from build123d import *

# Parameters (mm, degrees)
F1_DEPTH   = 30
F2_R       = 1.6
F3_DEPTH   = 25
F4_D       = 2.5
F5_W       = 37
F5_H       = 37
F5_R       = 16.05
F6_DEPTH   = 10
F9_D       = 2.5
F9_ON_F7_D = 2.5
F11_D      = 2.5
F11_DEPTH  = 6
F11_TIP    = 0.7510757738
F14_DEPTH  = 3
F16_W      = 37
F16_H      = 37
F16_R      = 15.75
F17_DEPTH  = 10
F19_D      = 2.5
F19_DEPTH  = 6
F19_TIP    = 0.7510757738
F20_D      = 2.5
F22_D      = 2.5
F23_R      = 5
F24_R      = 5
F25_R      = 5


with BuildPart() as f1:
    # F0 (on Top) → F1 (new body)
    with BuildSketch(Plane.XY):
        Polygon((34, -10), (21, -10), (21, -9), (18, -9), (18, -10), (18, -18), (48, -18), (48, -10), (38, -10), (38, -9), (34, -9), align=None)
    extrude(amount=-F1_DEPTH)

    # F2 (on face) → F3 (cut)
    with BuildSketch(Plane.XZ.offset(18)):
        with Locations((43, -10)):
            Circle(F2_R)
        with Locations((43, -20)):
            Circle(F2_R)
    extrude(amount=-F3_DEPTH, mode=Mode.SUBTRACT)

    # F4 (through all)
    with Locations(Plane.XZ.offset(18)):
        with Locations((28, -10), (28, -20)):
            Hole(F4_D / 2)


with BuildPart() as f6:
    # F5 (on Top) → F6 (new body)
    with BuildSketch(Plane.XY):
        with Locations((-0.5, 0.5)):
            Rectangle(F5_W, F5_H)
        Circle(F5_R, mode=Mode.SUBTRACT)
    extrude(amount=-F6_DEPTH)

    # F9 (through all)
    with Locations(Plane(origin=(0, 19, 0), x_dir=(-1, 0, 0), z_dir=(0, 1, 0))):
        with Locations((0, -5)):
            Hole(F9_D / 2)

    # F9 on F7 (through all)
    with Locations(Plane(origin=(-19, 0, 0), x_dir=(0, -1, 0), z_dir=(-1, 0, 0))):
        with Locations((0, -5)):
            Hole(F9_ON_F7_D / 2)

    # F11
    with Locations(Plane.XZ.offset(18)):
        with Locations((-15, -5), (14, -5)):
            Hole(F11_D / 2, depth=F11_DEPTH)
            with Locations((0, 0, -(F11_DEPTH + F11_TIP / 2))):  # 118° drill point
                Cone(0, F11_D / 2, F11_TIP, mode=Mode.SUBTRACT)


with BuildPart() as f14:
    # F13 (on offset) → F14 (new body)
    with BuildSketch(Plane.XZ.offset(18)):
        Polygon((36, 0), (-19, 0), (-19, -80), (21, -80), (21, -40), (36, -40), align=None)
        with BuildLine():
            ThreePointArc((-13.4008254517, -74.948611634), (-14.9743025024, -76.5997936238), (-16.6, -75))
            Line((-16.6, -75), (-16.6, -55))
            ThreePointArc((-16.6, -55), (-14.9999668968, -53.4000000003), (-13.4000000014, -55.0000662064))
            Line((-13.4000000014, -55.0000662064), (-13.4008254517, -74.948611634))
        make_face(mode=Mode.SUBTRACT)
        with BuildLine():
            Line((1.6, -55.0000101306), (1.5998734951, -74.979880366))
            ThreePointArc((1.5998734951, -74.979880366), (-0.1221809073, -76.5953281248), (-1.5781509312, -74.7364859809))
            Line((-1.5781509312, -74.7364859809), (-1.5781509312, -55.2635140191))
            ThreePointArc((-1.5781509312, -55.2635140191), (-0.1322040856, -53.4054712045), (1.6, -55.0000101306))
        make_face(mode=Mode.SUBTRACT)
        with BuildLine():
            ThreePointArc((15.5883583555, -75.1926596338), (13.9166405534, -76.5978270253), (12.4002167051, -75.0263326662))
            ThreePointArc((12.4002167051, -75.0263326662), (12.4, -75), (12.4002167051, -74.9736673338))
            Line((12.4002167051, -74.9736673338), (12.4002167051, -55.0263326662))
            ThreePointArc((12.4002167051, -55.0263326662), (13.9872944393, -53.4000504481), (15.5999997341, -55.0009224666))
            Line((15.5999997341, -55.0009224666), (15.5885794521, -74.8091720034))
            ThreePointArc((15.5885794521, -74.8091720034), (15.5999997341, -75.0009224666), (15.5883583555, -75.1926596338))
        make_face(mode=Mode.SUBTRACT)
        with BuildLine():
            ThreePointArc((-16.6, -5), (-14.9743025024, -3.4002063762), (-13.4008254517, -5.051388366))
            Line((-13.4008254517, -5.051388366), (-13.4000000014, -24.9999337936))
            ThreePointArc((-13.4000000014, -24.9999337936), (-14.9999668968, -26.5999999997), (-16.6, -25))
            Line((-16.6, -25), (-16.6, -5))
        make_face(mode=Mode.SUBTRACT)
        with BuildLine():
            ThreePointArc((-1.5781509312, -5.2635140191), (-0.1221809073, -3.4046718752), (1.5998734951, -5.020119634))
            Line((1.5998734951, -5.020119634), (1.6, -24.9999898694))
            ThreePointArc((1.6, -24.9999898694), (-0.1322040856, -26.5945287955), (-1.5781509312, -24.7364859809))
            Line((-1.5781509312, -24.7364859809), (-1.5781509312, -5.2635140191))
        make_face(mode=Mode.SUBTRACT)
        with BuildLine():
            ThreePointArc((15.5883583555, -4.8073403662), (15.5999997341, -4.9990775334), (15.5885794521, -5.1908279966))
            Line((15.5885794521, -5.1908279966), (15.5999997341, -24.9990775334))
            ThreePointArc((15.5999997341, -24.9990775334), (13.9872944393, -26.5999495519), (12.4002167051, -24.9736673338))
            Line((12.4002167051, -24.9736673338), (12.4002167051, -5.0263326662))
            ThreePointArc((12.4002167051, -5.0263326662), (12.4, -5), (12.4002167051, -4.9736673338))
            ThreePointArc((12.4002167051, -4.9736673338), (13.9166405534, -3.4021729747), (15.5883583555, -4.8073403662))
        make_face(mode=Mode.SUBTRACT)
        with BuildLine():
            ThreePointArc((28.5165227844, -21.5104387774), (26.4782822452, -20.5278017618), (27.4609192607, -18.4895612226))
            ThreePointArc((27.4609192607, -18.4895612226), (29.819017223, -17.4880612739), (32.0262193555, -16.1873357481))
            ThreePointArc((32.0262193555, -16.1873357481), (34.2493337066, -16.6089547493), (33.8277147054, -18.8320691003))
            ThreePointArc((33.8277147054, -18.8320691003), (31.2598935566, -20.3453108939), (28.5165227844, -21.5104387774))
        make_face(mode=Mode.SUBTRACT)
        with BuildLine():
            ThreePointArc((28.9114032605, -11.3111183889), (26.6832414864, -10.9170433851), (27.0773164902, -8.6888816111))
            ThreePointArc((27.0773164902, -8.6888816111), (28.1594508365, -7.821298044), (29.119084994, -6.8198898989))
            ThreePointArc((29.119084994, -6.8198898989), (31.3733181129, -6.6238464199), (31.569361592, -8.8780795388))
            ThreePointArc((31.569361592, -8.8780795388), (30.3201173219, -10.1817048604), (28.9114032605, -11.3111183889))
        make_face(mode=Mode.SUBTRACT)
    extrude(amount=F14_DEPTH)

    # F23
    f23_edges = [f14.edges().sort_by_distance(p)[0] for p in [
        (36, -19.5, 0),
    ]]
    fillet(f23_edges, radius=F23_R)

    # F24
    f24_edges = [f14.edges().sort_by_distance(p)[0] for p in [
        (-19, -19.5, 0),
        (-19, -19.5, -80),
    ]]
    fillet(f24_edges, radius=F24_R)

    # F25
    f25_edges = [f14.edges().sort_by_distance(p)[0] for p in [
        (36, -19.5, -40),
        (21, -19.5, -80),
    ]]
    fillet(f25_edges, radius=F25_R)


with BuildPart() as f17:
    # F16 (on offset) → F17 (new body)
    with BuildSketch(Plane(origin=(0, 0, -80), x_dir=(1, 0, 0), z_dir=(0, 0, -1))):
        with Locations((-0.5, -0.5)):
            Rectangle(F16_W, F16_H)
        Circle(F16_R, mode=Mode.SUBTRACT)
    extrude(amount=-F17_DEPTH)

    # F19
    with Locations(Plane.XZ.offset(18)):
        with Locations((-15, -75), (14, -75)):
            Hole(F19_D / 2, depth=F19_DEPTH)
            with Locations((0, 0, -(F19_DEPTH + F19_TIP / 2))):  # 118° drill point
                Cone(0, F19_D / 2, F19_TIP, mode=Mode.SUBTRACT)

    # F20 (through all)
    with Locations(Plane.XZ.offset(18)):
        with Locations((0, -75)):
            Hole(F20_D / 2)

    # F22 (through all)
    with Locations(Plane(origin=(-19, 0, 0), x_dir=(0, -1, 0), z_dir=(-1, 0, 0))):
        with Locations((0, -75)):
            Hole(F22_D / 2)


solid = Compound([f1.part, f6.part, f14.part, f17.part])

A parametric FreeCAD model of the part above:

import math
import FreeCAD as App
import Part
import Sketcher

V = App.Vector


def edges_at(feature, points):
    """Names of the edges that pass closest to the given points."""
    edges = feature.Shape.Edges
    near = lambda p: min(range(len(edges)), key=lambda i: edges[i].distToShape(Part.Vertex(*p))[0])
    return sorted({f"Edge{near(p) + 1}" for p in points})


def add_polygon(sketch, points):
    """Adds a closed chain of lines whose ends are joined by coincident constraints."""
    first, n = sketch.GeometryCount, len(points)
    for a, b in zip(points, points[1:] + points[:1]):
        sketch.addGeometry(Part.LineSegment(App.Vector(*a, 0), App.Vector(*b, 0)), False)
    for i in range(n):
        sketch.addConstraint(Sketcher.Constraint("Coincident", first + i, 2, first + (i + 1) % n, 1))

doc = App.newDocument("Part")
body = doc.addObject("PartDesign::Body", "Body")

sketch1 = doc.addObject("Sketcher::SketchObject", "Sketch")
body.addObject(sketch1)
sketch1.AttachmentSupport = (doc.XY_Plane, [""])
sketch1.MapMode = "FlatFace"
add_polygon(sketch1, [(34, -10), (21, -10), (21, -9), (18, -9), (18, -18), (48, -18), (48, -10), (38, -10), (38, -9), (34, -9)])
sketch1.addConstraint([
    Sketcher.Constraint("Horizontal", 0),
    Sketcher.Constraint("Vertical", 1),
    Sketcher.Constraint("Horizontal", 2),
    Sketcher.Constraint("Vertical", 3),
    Sketcher.Constraint("Horizontal", 4),
    Sketcher.Constraint("Vertical", 5),
    Sketcher.Constraint("Horizontal", 6),
    Sketcher.Constraint("Vertical", 7),
    Sketcher.Constraint("Horizontal", 8),
    Sketcher.Constraint("Vertical", 9),
    Sketcher.Constraint("Horizontal", 0, 2, 5, 2),
    Sketcher.Constraint("Horizontal", 2, 2, 7, 2),
    Sketcher.Constraint("DistanceX", 0, 2, 0, 1, 13.0),
    Sketcher.Constraint("DistanceX", 2, 2, 2, 1, 3.0),
    Sketcher.Constraint("DistanceX", 4, 1, 4, 2, 30.0),
    Sketcher.Constraint("DistanceX", 6, 2, 6, 1, 10.0),
    Sketcher.Constraint("DistanceY", 1, 1, 1, 2, 1.0),
    Sketcher.Constraint("DistanceY", 3, 2, 3, 1, 9.0),
    Sketcher.Constraint("DistanceX", -1, 1, 0, 2, 21.0),
    Sketcher.Constraint("DistanceY", 0, 2, -1, 1, 10.0),
])
pad1 = doc.addObject("PartDesign::Pad", "Pad")
body.addObject(pad1)
pad1.Profile = sketch1
pad1.Length = 30
pad1.Reversed = True

sketch2 = doc.addObject("Sketcher::SketchObject", "Sketch001")
body.addObject(sketch2)
sketch2.AttachmentSupport = (doc.XZ_Plane, [""])
sketch2.MapMode = "FlatFace"
sketch2.AttachmentOffset = App.Placement(V(0, 0, 18), App.Rotation())
sketch2.addGeometry([
    Part.Circle(V(43, -10, 0), V(0, 0, 1), 1.6),
    Part.Circle(V(43, -20, 0), V(0, 0, 1), 1.6),
], False)
sketch2.addConstraint([
    Sketcher.Constraint("Equal", 0, 1),
    Sketcher.Constraint("Vertical", 0, 3, 1, 3),
    Sketcher.Constraint("Diameter", 0, 3.2),
    Sketcher.Constraint("DistanceX", -1, 1, 0, 3, 43.0),
    Sketcher.Constraint("DistanceY", 0, 3, -1, 1, 10.0),
    Sketcher.Constraint("DistanceY", 1, 3, -1, 1, 20.0),
])
pocket1 = doc.addObject("PartDesign::Pocket", "Pocket")
body.addObject(pocket1)
pocket1.Profile = sketch2
pocket1.Length = 25

sketch3 = doc.addObject("Sketcher::SketchObject", "Sketch002")
body.addObject(sketch3)
sketch3.AttachmentSupport = (doc.XZ_Plane, [""])
sketch3.MapMode = "FlatFace"
sketch3.AttachmentOffset = App.Placement(V(0, 0, 18), App.Rotation())
sketch3.addGeometry([
    Part.Circle(V(28, -10, 0), V(0, 0, 1), 1.2),
    Part.Circle(V(28, -20, 0), V(0, 0, 1), 1.2),
], False)
sketch3.addConstraint([
    Sketcher.Constraint("Equal", 0, 1),
    Sketcher.Constraint("Vertical", 0, 3, 1, 3),
    Sketcher.Constraint("Diameter", 0, 2.5),
    Sketcher.Constraint("DistanceX", -1, 1, 0, 3, 28.0),
    Sketcher.Constraint("DistanceY", 0, 3, -1, 1, 10.0),
    Sketcher.Constraint("DistanceY", 1, 3, -1, 1, 20.0),
])
doc.recompute()
hole = doc.addObject("PartDesign::Hole", "Hole")
body.addObject(hole)
hole.Profile = sketch3
hole.ThreadType = "None"
hole.Diameter = 2.5
hole.DepthType = "ThroughAll"
body2 = doc.addObject("PartDesign::Body", "Body001")

sketch4 = doc.addObject("Sketcher::SketchObject", "Sketch003")
body2.addObject(sketch4)
sketch4.AttachmentSupport = (doc.getObject("XY_Plane001"), [""])
sketch4.MapMode = "FlatFace"
add_polygon(sketch4, [(-19, 19), (-19, -18), (18, -18), (18, 19)])
sketch4.addGeometry(Part.Circle(V(0, 0, 0), V(0, 0, 1), 16), False)
sketch4.addConstraint([
    Sketcher.Constraint("Vertical", 0),
    Sketcher.Constraint("Horizontal", 1),
    Sketcher.Constraint("Vertical", 2),
    Sketcher.Constraint("Horizontal", 3),
    Sketcher.Constraint("Coincident", 4, 3, -1, 1),
    Sketcher.Constraint("Equal", 3, 0),
    Sketcher.Constraint("Diameter", 4, 32.1),
    Sketcher.Constraint("DistanceX", 1, 1, 1, 2, 37.0),
    Sketcher.Constraint("DistanceX", 0, 2, -1, 1, 19.0),
    Sketcher.Constraint("DistanceY", 0, 2, -1, 1, 18.0),
])
pad2 = doc.addObject("PartDesign::Pad", "Pad001")
body2.addObject(pad2)
pad2.Profile = sketch4
pad2.Length = 10
pad2.Reversed = True

sketch5 = doc.addObject("Sketcher::SketchObject", "Sketch004")
body2.addObject(sketch5)
sketch5.AttachmentSupport = (doc.getObject("XZ_Plane001"), [""])
sketch5.MapMode = "FlatFace"
sketch5.AttachmentOffset = App.Placement(V(0, 0, -19), App.Rotation())
sketch5.addGeometry(Part.Circle(V(0, -5, 0), V(0, 0, 1), 1.2), False)
sketch5.addConstraint([
    Sketcher.Constraint("PointOnObject", 0, 3, -2),
    Sketcher.Constraint("Diameter", 0, 2.5),
    Sketcher.Constraint("DistanceY", 0, 3, -1, 1, 5.0),
])
doc.recompute()
hole2 = doc.addObject("PartDesign::Hole", "Hole001")
body2.addObject(hole2)
hole2.Profile = sketch5
hole2.ThreadType = "None"
hole2.Diameter = 2.5
hole2.DepthType = "ThroughAll"
hole2.Reversed = True

sketch6 = doc.addObject("Sketcher::SketchObject", "Sketch005")
body2.addObject(sketch6)
sketch6.AttachmentSupport = (doc.getObject("YZ_Plane001"), [""])
sketch6.MapMode = "FlatFace"
sketch6.AttachmentOffset = App.Placement(V(0, 0, -19), App.Rotation())
sketch6.addGeometry(Part.Circle(V(0, -5, 0), V(0, 0, 1), 1.2), False)
sketch6.addConstraint([
    Sketcher.Constraint("PointOnObject", 0, 3, -2),
    Sketcher.Constraint("Diameter", 0, 2.5),
    Sketcher.Constraint("DistanceY", 0, 3, -1, 1, 5.0),
])
doc.recompute()
hole3 = doc.addObject("PartDesign::Hole", "Hole002")
body2.addObject(hole3)
hole3.Profile = sketch6
hole3.ThreadType = "None"
hole3.Diameter = 2.5
hole3.DepthType = "ThroughAll"
hole3.Reversed = True

sketch7 = doc.addObject("Sketcher::SketchObject", "Sketch006")
body2.addObject(sketch7)
sketch7.AttachmentSupport = (doc.getObject("XZ_Plane001"), [""])
sketch7.MapMode = "FlatFace"
sketch7.AttachmentOffset = App.Placement(V(0, 0, 18), App.Rotation())
sketch7.addGeometry([
    Part.Circle(V(-15, -5, 0), V(0, 0, 1), 1.2),
    Part.Circle(V(14, -5, 0), V(0, 0, 1), 1.2),
], False)
sketch7.addConstraint([
    Sketcher.Constraint("Equal", 0, 1),
    Sketcher.Constraint("Horizontal", 0, 3, 1, 3),
    Sketcher.Constraint("Diameter", 0, 2.5),
    Sketcher.Constraint("DistanceX", 0, 3, -1, 1, 15.0),
    Sketcher.Constraint("DistanceY", 0, 3, -1, 1, 5.0),
    Sketcher.Constraint("DistanceX", -1, 1, 1, 3, 14.0),
])
doc.recompute()
hole4 = doc.addObject("PartDesign::Hole", "Hole003")
body2.addObject(hole4)
hole4.Profile = sketch7
hole4.ThreadType = "None"
hole4.Diameter = 2.5
hole4.DepthType = "Dimension"
hole4.Depth = 6
hole4.DrillPoint = "Angled"
hole4.DrillPointAngle = 118
body3 = doc.addObject("PartDesign::Body", "Body002")

sketch8 = doc.addObject("Sketcher::SketchObject", "Sketch007")
body3.addObject(sketch8)
sketch8.AttachmentSupport = (doc.getObject("XZ_Plane002"), [""])
sketch8.MapMode = "FlatFace"
sketch8.AttachmentOffset = App.Placement(V(0, 0, 18), App.Rotation())
add_polygon(sketch8, [(36, 0), (-19, 0), (-19, -80), (21, -80), (21, -40), (36, -40)])
sketch8.addGeometry(Part.LineSegment(V(-13.4, -55, 0), V(-13.4, -74.95, 0)), False)
sketch8.addGeometry(Part.ArcOfCircle(Part.Circle(V(-15, -75, 0), V(0, 0, 1), 1.6), math.radians(180), math.radians(362)), False)
sketch8.addGeometry(Part.LineSegment(V(-16.6, -75, 0), V(-16.6, -55, 0)), False)
sketch8.addGeometry(Part.ArcOfCircle(Part.Circle(V(-15, -55, 0), V(0, 0, 1), 1.6), math.radians(0), math.radians(180)), False)
sketch8.addGeometry(Part.ArcOfCircle(Part.Circle(V(0, -55, 0), V(0, 0, 1), 1.6), math.radians(0), math.radians(189)), False)
sketch8.addGeometry(Part.LineSegment(V(1.6, -55, 0), V(1.6, -74.98, 0)), False)
sketch8.addGeometry(Part.ArcOfCircle(Part.Circle(V(0, -75, 0), V(0, 0, 1), 1.6), math.radians(171), math.radians(361)), False)
sketch8.addGeometry(Part.LineSegment(V(-1.58, -74.74, 0), V(-1.58, -55.26, 0)), False)
sketch8.addGeometry(Part.ArcOfCircle(Part.Circle(V(14, -75, 0), V(0, 0, 1), 1.6), math.radians(-6.92), math.radians(6.85)), False)
sketch8.addGeometry(Part.ArcOfCircle(Part.Circle(V(14, -75, 0), V(0, 0, 1), 1.6), math.radians(-179), math.radians(-7)), False)
sketch8.addGeometry(Part.ArcOfCircle(Part.Circle(V(14, -75, 0), V(0, 0, 1), 1.6), math.radians(179.06), math.radians(180.94)), False)
sketch8.addGeometry(Part.LineSegment(V(12.4, -74.97, 0), V(12.4, -55.03, 0)), False)
sketch8.addGeometry(Part.ArcOfCircle(Part.Circle(V(14, -55, 0), V(0, 0, 1), 1.6), math.radians(0), math.radians(181)), False)
sketch8.addGeometry(Part.LineSegment(V(15.6, -55, 0), V(15.59, -74.81, 0)), False)
sketch8.addGeometry(Part.LineSegment(V(-16.6, -25, 0), V(-16.6, -5, 0)), False)
sketch8.addGeometry(Part.ArcOfCircle(Part.Circle(V(-15, -5, 0), V(0, 0, 1), 1.6), math.radians(-2), math.radians(180)), False)
sketch8.addGeometry(Part.LineSegment(V(-13.4, -5.05, 0), V(-13.4, -25, 0)), False)
sketch8.addGeometry(Part.ArcOfCircle(Part.Circle(V(-15, -25, 0), V(0, 0, 1), 1.6), math.radians(180), math.radians(360)), False)
sketch8.addGeometry(Part.LineSegment(V(-1.58, -24.74, 0), V(-1.58, -5.26, 0)), False)
sketch8.addGeometry(Part.ArcOfCircle(Part.Circle(V(0, -5, 0), V(0, 0, 1), 1.6), math.radians(-1), math.radians(189)), False)
sketch8.addGeometry(Part.LineSegment(V(1.6, -5.02, 0), V(1.6, -25, 0)), False)
sketch8.addGeometry(Part.ArcOfCircle(Part.Circle(V(0, -25, 0), V(0, 0, 1), 1.6), math.radians(171), math.radians(360)), False)
sketch8.addGeometry(Part.ArcOfCircle(Part.Circle(V(14, -5, 0), V(0, 0, 1), 1.6), math.radians(7), math.radians(179)), False)
sketch8.addGeometry(Part.ArcOfCircle(Part.Circle(V(14, -5, 0), V(0, 0, 1), 1.6), math.radians(-6.85), math.radians(6.92)), False)
sketch8.addGeometry(Part.LineSegment(V(15.59, -5.19, 0), V(15.6, -25, 0)), False)
sketch8.addGeometry(Part.ArcOfCircle(Part.Circle(V(14, -25, 0), V(0, 0, 1), 1.6), math.radians(179), math.radians(360)), False)
sketch8.addGeometry(Part.LineSegment(V(12.4, -24.97, 0), V(12.4, -5.03, 0)), False)
sketch8.addGeometry(Part.ArcOfCircle(Part.Circle(V(14, -5, 0), V(0, 0, 1), 1.6), math.radians(179.06), math.radians(180.94)), False)
sketch8.addGeometry(Part.ArcOfCircle(Part.Circle(V(21, 0, 0), V(0, 0, 1), 22.79), math.radians(-70.74), math.radians(-55.74)), False)
sketch8.addGeometry(Part.ArcOfCircle(Part.Circle(V(27.99, -20, 0), V(0, 0, 1), 1.6), math.radians(109), math.radians(289)), False)
sketch8.addGeometry(Part.ArcOfCircle(Part.Circle(V(21, 0, 0), V(0, 0, 1), 19.59), math.radians(-70.74), math.radians(-55.74)), False)
sketch8.addGeometry(Part.ArcOfCircle(Part.Circle(V(32.93, -17.51, 0), V(0, 0, 1), 1.6), math.radians(-56), math.radians(124)), False)
sketch8.addGeometry(Part.ArcOfCircle(Part.Circle(V(21, 0, 0), V(0, 0, 1), 13.8), math.radians(-55.03), math.radians(-40.03)), False)
sketch8.addGeometry(Part.ArcOfCircle(Part.Circle(V(27.99, -10, 0), V(0, 0, 1), 1.6), math.radians(125), math.radians(305)), False)
sketch8.addGeometry(Part.ArcOfCircle(Part.Circle(V(21, 0, 0), V(0, 0, 1), 10.6), math.radians(-55.03), math.radians(-40.03)), False)
sketch8.addGeometry(Part.ArcOfCircle(Part.Circle(V(30.34, -7.85, 0), V(0, 0, 1), 1.6), math.radians(-40), math.radians(140)), False)
sketch8.addConstraint([
    Sketcher.Constraint("Coincident", 6, 2, 7, 2),
    Sketcher.Constraint("Tangent", 7, 1, 8, 1),
    Sketcher.Constraint("Tangent", 8, 2, 9, 2),
    Sketcher.Constraint("Tangent", 9, 1, 6, 1),
    Sketcher.Constraint("Tangent", 10, 1, 11, 1),
    Sketcher.Constraint("Coincident", 11, 2, 12, 2),
    Sketcher.Constraint("Coincident", 12, 1, 13, 1),
    Sketcher.Constraint("Coincident", 13, 2, 10, 2),
    Sketcher.Constraint("Tangent", 14, 1, 15, 2),
    Sketcher.Constraint("Tangent", 15, 1, 16, 2),
    Sketcher.Constraint("Coincident", 16, 1, 17, 1),
    Sketcher.Constraint("Coincident", 17, 2, 18, 2),
    Sketcher.Constraint("Tangent", 18, 1, 19, 1),
    Sketcher.Constraint("Coincident", 19, 2, 14, 2),
    Sketcher.Constraint("Tangent", 20, 2, 21, 2),
    Sketcher.Constraint("Coincident", 21, 1, 22, 1),
    Sketcher.Constraint("Tangent", 22, 2, 23, 2),
    Sketcher.Constraint("Tangent", 23, 1, 20, 1),
    Sketcher.Constraint("Coincident", 24, 2, 25, 2),
    Sketcher.Constraint("Coincident", 25, 1, 26, 1),
    Sketcher.Constraint("Tangent", 26, 2, 27, 2),
    Sketcher.Constraint("Coincident", 27, 1, 24, 1),
    Sketcher.Constraint("Tangent", 28, 1, 29, 2),
    Sketcher.Constraint("Coincident", 29, 1, 30, 1),
    Sketcher.Constraint("Tangent", 30, 2, 31, 2),
    Sketcher.Constraint("Coincident", 31, 1, 32, 1),
    Sketcher.Constraint("Coincident", 32, 2, 33, 2),
    Sketcher.Constraint("Tangent", 33, 1, 28, 2),
    Sketcher.Constraint("Tangent", 34, 1, 35, 2),
    Sketcher.Constraint("Tangent", 35, 1, 36, 1),
    Sketcher.Constraint("Tangent", 36, 2, 37, 2),
    Sketcher.Constraint("Tangent", 37, 1, 34, 2),
    Sketcher.Constraint("Tangent", 38, 1, 39, 2),
    Sketcher.Constraint("Tangent", 39, 1, 40, 1),
    Sketcher.Constraint("Tangent", 40, 2, 41, 2),
    Sketcher.Constraint("Tangent", 41, 1, 38, 2),
    Sketcher.Constraint("Horizontal", 0),
    Sketcher.Constraint("Vertical", 1),
    Sketcher.Constraint("Horizontal", 2),
    Sketcher.Constraint("Vertical", 3),
    Sketcher.Constraint("Horizontal", 4),
    Sketcher.Constraint("Vertical", 5),
    Sketcher.Constraint("Vertical", 8),
    Sketcher.Constraint("Vertical", 13),
    Sketcher.Constraint("Vertical", 17),
    Sketcher.Constraint("Vertical", 20),
    Sketcher.Constraint("Vertical", 24),
    Sketcher.Constraint("Vertical", 32),
    Sketcher.Constraint("Coincident", 16, 3, 14, 3),
    Sketcher.Constraint("Coincident", 36, 3, 34, 3),
    Sketcher.Constraint("Coincident", 38, 3, 34, 3),
    Sketcher.Constraint("Coincident", 40, 3, 34, 3),
    Sketcher.Constraint("Equal", 7, 9),
    Sketcher.Constraint("Equal", 9, 10),
    Sketcher.Constraint("Equal", 10, 12),
    Sketcher.Constraint("Equal", 12, 14),
    Sketcher.Constraint("Equal", 16, 18),
    Sketcher.Constraint("Equal", 18, 21),
    Sketcher.Constraint("Equal", 21, 23),
    Sketcher.Constraint("Equal", 23, 25),
    Sketcher.Constraint("Equal", 25, 27),
    Sketcher.Constraint("Equal", 27, 28),
    Sketcher.Constraint("Equal", 28, 29),
    Sketcher.Constraint("Equal", 29, 31),
    Sketcher.Constraint("Equal", 31, 33),
    Sketcher.Constraint("Equal", 33, 35),
    Sketcher.Constraint("Equal", 37, 39),
    Sketcher.Constraint("PointOnObject", 10, 3, -2),
    Sketcher.Constraint("PointOnObject", 12, 3, -2),
    Sketcher.Constraint("PointOnObject", 25, 3, -2),
    Sketcher.Constraint("PointOnObject", 27, 3, -2),
    Sketcher.Constraint("PointOnObject", 34, 3, -1),
    Sketcher.Constraint("PointOnObject", 0, 2, -1),
    Sketcher.Constraint("Horizontal", 9, 3, 10, 3),
    Sketcher.Constraint("Horizontal", 7, 3, 12, 3),
    Sketcher.Constraint("Horizontal", 12, 3, 14, 3),
    Sketcher.Constraint("Horizontal", 10, 3, 18, 3),
    Sketcher.Constraint("Horizontal", 21, 3, 25, 3),
    Sketcher.Constraint("Horizontal", 23, 3, 27, 3),
    Sketcher.Constraint("Horizontal", 25, 3, 28, 3),
    Sketcher.Constraint("Horizontal", 27, 3, 31, 3),
    Sketcher.Constraint("Vertical", 16, 3, 18, 3),
    Sketcher.Constraint("Vertical", 9, 3, 21, 3),
    Sketcher.Constraint("Vertical", 18, 3, 28, 3),
    Sketcher.Constraint("Vertical", 29, 3, 31, 3),
    Sketcher.Constraint("Vertical", 40, 3, 2, 2),
    Sketcher.Constraint("Vertical", 15, 1, 16, 1),
    Sketcher.Constraint("Vertical", 6, 2, 21, 1),
    Sketcher.Constraint("Vertical", 13, 2, 24, 2),
    Sketcher.Constraint("Vertical", 11, 2, 25, 1),
    Sketcher.Constraint("Vertical", 14, 1, 28, 1),
    Sketcher.Constraint("Vertical", 19, 2, 29, 1),
    Sketcher.Constraint("Vertical", 17, 2, 31, 1),
    Sketcher.Constraint("Vertical", 32, 2, 33, 1),
    Sketcher.Constraint("Equal", 2, 3),
    Sketcher.Constraint("Equal", 3, 5),
    Sketcher.Constraint("Equal", 8, 20),
    Sketcher.Constraint("Radius", 7, 1.6),
    Sketcher.Constraint("DistanceX", 0, 2, 0, 1, 55.0),
    Sketcher.Constraint("DistanceX", 2, 1, 2, 2, 40.0),
    Sketcher.Constraint("DistanceY", 8, 1, 8, 2, 20.0),
    Sketcher.Constraint("DistanceX", 7, 3, -1, 1, 15.0),
    Sketcher.Constraint("DistanceY", 7, 3, -1, 1, 75.0),
    Sketcher.Constraint("DistanceX", -1, 1, 14, 3, 14.0),
    Sketcher.Constraint("DistanceY", 21, 3, -1, 1, 5.0),
    Sketcher.Constraint("DistanceX", -1, 1, 34, 3, 21.0),
    Sketcher.Constraint("DistanceY", 35, 3, -1, 1, 20.0),
    Sketcher.Constraint("DistanceY", 39, 3, -1, 1, 10.0),
    Sketcher.Constraint("Radius", 34, 22.785897),
    Sketcher.Constraint("Radius", 38, 13.803322),
    Sketcher.Constraint("DistanceY", 13, 1, 13, 2, 19.472972),
    Sketcher.Constraint("Distance", 11, 19.97987),
    Sketcher.Constraint("DistanceY", 17, 1, 17, 2, 19.947335),
    Sketcher.Constraint("DistanceY", 6, 2, -1, 1, 74.948612),
    Sketcher.Constraint("DistanceX", -1, 1, 14, 1, 15.588358),
    Sketcher.Constraint("DistanceX", -1, 1, 19, 2, 15.588579),
    Sketcher.Constraint("DistanceX", -1, 1, 36, 2, 32.026219),
    Sketcher.Constraint("DistanceY", 40, 2, -1, 1, 6.81989),
])
pad3 = doc.addObject("PartDesign::Pad", "Pad002")
body3.addObject(pad3)
pad3.Profile = sketch8
pad3.Length = 3
doc.recompute()

fillet = doc.addObject("PartDesign::Fillet", "Fillet")
body3.addObject(fillet)
fillet.Base = (pad3, edges_at(pad3, [(36, -19.5, 0)]))
fillet.Radius = 5
doc.recompute()

fillet2 = doc.addObject("PartDesign::Fillet", "Fillet001")
body3.addObject(fillet2)
fillet2.Base = (fillet, edges_at(fillet, [(-19, -19.5, 0), (-19, -19.5, -80)]))
fillet2.Radius = 5
doc.recompute()

fillet3 = doc.addObject("PartDesign::Fillet", "Fillet002")
body3.addObject(fillet3)
fillet3.Base = (fillet2, edges_at(fillet2, [(36, -19.5, -40), (21, -19.5, -80)]))
fillet3.Radius = 5
body4 = doc.addObject("PartDesign::Body", "Body003")

sketch9 = doc.addObject("Sketcher::SketchObject", "Sketch008")
body4.addObject(sketch9)
sketch9.AttachmentSupport = (doc.getObject("XY_Plane003"), [""])
sketch9.MapMode = "FlatFace"
sketch9.AttachmentOffset = App.Placement(V(0, 0, -80), App.Rotation())
add_polygon(sketch9, [(-19, -18), (-19, 19), (18, 19), (18, -18)])
sketch9.addGeometry(Part.Circle(V(0, 0, 0), V(0, 0, 1), 16), False)
sketch9.addConstraint([
    Sketcher.Constraint("Vertical", 0),
    Sketcher.Constraint("Horizontal", 1),
    Sketcher.Constraint("Vertical", 2),
    Sketcher.Constraint("Horizontal", 3),
    Sketcher.Constraint("Coincident", 4, 3, -1, 1),
    Sketcher.Constraint("Equal", 3, 0),
    Sketcher.Constraint("Diameter", 4, 31.5),
    Sketcher.Constraint("DistanceX", 1, 1, 1, 2, 37.0),
    Sketcher.Constraint("DistanceX", 0, 2, -1, 1, 19.0),
    Sketcher.Constraint("DistanceY", -1, 1, 0, 2, 19.0),
])
pad4 = doc.addObject("PartDesign::Pad", "Pad003")
body4.addObject(pad4)
pad4.Profile = sketch9
pad4.Length = 10

sketch10 = doc.addObject("Sketcher::SketchObject", "Sketch009")
body4.addObject(sketch10)
sketch10.AttachmentSupport = (doc.getObject("XZ_Plane003"), [""])
sketch10.MapMode = "FlatFace"
sketch10.AttachmentOffset = App.Placement(V(0, 0, 18), App.Rotation())
sketch10.addGeometry([
    Part.Circle(V(-15, -75, 0), V(0, 0, 1), 1.2),
    Part.Circle(V(14, -75, 0), V(0, 0, 1), 1.2),
], False)
sketch10.addConstraint([
    Sketcher.Constraint("Equal", 0, 1),
    Sketcher.Constraint("Horizontal", 0, 3, 1, 3),
    Sketcher.Constraint("Diameter", 0, 2.5),
    Sketcher.Constraint("DistanceX", 0, 3, -1, 1, 15.0),
    Sketcher.Constraint("DistanceY", 0, 3, -1, 1, 75.0),
    Sketcher.Constraint("DistanceX", -1, 1, 1, 3, 14.0),
])
doc.recompute()
hole5 = doc.addObject("PartDesign::Hole", "Hole004")
body4.addObject(hole5)
hole5.Profile = sketch10
hole5.ThreadType = "None"
hole5.Diameter = 2.5
hole5.DepthType = "Dimension"
hole5.Depth = 6
hole5.DrillPoint = "Angled"
hole5.DrillPointAngle = 118

sketch11 = doc.addObject("Sketcher::SketchObject", "Sketch010")
body4.addObject(sketch11)
sketch11.AttachmentSupport = (doc.getObject("XZ_Plane003"), [""])
sketch11.MapMode = "FlatFace"
sketch11.AttachmentOffset = App.Placement(V(0, 0, 18), App.Rotation())
sketch11.addGeometry(Part.Circle(V(0, -75, 0), V(0, 0, 1), 1.2), False)
sketch11.addConstraint([
    Sketcher.Constraint("PointOnObject", 0, 3, -2),
    Sketcher.Constraint("Diameter", 0, 2.5),
    Sketcher.Constraint("DistanceY", 0, 3, -1, 1, 75.0),
])
doc.recompute()
hole6 = doc.addObject("PartDesign::Hole", "Hole005")
body4.addObject(hole6)
hole6.Profile = sketch11
hole6.ThreadType = "None"
hole6.Diameter = 2.5
hole6.DepthType = "ThroughAll"

sketch12 = doc.addObject("Sketcher::SketchObject", "Sketch011")
body4.addObject(sketch12)
sketch12.AttachmentSupport = (doc.getObject("YZ_Plane003"), [""])
sketch12.MapMode = "FlatFace"
sketch12.AttachmentOffset = App.Placement(V(0, 0, -19), App.Rotation())
sketch12.addGeometry(Part.Circle(V(0, -75, 0), V(0, 0, 1), 1.2), False)
sketch12.addConstraint([
    Sketcher.Constraint("PointOnObject", 0, 3, -2),
    Sketcher.Constraint("Diameter", 0, 2.5),
    Sketcher.Constraint("DistanceY", 0, 3, -1, 1, 75.0),
])
doc.recompute()
hole7 = doc.addObject("PartDesign::Hole", "Hole006")
body4.addObject(hole7)
hole7.Profile = sketch12
hole7.ThreadType = "None"
hole7.Diameter = 2.5
hole7.DepthType = "ThroughAll"
hole7.Reversed = True

doc.recompute()
